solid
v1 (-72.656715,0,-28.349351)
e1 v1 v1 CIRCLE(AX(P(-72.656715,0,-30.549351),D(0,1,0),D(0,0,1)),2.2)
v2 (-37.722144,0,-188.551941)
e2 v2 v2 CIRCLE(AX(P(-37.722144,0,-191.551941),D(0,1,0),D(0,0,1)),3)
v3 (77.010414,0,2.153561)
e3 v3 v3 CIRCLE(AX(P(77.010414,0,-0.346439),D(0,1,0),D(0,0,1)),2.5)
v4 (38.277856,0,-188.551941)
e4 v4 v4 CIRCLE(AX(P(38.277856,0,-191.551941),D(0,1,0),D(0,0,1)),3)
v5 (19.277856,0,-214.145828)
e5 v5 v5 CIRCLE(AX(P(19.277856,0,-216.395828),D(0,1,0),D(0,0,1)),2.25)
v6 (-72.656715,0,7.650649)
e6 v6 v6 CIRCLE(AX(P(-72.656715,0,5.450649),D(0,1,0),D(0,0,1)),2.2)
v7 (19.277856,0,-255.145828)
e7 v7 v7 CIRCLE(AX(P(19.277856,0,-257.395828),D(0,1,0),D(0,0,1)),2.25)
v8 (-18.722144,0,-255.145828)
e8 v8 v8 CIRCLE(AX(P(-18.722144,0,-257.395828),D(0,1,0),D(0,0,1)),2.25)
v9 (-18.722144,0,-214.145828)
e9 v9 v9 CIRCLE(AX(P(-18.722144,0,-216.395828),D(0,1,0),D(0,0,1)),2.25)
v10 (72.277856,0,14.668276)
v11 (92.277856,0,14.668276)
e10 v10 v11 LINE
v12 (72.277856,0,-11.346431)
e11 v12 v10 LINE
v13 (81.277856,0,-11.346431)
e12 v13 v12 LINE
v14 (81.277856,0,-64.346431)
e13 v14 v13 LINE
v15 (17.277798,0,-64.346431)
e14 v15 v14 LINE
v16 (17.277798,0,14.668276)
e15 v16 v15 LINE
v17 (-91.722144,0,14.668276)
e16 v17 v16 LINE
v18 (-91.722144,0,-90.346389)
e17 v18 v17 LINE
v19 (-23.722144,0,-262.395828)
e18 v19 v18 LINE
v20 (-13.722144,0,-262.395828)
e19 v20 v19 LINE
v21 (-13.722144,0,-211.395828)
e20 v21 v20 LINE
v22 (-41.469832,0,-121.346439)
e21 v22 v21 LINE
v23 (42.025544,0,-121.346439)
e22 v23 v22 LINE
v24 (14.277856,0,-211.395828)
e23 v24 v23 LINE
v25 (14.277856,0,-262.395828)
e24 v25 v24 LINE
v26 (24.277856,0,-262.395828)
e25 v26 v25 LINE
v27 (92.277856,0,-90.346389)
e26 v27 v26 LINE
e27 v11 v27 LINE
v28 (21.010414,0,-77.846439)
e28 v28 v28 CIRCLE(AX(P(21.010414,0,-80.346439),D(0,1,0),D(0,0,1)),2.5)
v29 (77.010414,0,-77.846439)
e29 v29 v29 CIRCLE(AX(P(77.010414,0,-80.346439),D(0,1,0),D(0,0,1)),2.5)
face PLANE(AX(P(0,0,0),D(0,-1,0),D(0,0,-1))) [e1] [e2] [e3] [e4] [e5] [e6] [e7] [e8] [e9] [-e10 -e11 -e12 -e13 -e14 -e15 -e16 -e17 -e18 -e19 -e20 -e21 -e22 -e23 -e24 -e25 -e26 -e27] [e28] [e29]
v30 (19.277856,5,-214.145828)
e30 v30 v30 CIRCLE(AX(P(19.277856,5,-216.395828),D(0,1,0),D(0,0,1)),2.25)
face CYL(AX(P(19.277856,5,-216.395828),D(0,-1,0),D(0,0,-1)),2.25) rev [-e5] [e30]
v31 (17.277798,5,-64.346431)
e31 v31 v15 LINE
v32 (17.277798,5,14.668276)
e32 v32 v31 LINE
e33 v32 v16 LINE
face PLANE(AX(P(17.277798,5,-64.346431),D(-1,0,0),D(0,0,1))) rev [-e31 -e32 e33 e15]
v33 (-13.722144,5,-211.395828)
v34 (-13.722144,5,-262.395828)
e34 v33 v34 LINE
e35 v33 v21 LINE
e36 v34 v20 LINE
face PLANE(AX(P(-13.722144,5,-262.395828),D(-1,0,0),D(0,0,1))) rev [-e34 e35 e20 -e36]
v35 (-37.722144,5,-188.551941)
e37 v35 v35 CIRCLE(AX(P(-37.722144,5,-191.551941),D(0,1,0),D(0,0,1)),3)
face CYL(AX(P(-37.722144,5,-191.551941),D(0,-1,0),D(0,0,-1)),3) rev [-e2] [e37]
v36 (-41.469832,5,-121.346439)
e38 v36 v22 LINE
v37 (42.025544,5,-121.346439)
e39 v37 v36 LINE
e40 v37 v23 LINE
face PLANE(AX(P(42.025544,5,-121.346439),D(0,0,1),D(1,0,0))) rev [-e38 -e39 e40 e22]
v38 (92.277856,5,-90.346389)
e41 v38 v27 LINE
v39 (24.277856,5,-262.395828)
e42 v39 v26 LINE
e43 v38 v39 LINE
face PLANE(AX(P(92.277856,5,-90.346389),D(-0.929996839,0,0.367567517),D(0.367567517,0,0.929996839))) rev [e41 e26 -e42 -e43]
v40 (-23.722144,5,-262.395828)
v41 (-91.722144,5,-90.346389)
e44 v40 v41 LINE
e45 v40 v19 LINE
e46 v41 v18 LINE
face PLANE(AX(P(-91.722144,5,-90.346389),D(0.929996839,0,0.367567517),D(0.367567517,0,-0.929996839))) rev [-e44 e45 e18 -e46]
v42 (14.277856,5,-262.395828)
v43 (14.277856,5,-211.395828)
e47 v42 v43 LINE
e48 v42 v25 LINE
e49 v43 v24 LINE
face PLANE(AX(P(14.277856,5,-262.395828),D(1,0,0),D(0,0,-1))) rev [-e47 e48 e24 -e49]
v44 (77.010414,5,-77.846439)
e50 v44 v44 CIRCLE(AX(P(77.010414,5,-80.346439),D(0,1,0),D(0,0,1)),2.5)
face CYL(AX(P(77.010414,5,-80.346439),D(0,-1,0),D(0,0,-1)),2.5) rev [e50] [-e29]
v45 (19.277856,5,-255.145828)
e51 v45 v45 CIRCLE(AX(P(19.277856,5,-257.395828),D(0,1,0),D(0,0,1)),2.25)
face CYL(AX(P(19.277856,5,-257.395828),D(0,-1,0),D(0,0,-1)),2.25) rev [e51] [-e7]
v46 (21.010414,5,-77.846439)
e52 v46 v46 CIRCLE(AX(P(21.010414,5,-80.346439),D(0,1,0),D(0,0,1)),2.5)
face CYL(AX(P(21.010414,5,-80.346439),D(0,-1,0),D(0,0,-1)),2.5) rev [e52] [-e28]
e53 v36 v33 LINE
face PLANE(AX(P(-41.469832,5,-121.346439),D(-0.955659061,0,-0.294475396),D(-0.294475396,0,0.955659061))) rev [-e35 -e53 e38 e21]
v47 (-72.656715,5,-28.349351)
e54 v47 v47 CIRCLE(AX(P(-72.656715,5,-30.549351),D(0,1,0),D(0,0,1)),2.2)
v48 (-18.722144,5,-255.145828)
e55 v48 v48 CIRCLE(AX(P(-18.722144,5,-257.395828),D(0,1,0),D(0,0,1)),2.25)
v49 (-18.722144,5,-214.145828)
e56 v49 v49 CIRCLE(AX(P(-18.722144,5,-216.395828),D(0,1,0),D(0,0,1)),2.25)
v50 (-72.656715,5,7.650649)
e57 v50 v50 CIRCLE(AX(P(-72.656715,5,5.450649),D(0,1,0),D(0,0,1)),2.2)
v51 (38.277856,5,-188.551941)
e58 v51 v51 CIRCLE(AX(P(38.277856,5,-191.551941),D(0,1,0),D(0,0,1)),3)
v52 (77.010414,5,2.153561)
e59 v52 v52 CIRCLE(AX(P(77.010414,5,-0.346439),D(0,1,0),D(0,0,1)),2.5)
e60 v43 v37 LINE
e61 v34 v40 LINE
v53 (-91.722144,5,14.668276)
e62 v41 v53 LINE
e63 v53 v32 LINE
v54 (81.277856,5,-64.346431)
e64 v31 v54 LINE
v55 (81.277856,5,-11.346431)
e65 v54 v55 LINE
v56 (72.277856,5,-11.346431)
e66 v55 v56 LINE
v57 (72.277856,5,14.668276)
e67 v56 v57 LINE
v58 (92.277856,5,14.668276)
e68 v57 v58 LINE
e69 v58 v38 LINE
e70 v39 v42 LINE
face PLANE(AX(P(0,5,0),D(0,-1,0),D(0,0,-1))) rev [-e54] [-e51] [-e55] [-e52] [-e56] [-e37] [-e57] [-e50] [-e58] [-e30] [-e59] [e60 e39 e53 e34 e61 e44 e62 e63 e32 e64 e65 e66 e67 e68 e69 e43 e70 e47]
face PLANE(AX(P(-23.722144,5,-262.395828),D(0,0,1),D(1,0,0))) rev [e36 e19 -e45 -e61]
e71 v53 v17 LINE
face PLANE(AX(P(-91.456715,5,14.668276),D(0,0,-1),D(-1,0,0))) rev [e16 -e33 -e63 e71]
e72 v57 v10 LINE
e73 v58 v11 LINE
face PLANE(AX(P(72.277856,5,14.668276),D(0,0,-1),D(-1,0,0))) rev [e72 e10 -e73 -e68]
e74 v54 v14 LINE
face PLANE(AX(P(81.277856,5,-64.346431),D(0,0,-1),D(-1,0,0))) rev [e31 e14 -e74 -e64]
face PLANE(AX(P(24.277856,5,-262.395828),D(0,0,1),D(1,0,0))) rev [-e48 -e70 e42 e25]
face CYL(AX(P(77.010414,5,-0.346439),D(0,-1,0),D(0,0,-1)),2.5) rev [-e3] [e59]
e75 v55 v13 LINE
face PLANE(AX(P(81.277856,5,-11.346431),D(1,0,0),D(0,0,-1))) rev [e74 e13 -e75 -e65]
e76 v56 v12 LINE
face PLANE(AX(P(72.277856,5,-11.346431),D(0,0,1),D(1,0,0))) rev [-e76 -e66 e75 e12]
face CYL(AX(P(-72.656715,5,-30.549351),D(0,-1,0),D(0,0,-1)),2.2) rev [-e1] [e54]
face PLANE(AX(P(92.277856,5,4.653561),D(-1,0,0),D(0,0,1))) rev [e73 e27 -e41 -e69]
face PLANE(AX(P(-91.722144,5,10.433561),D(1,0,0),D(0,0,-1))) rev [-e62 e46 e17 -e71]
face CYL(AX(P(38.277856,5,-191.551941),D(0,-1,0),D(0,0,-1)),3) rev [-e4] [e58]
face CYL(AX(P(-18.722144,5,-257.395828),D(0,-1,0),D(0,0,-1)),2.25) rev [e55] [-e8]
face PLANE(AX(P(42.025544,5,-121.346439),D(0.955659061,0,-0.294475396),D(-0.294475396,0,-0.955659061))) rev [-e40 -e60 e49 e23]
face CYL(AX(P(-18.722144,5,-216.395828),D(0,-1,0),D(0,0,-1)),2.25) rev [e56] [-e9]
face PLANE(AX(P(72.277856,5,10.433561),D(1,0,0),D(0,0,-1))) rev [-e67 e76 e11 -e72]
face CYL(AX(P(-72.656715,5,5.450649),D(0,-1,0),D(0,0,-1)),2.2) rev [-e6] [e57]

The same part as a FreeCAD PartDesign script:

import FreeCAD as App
import Part
import Sketcher
from FreeCAD import Vector
Q = App.Units.Quantity


def add_polygon(sketch, points):
    """Adds a closed chain of lines whose ends are joined by coincident constraints."""
    first, n = sketch.GeometryCount, len(points)
    for a, b in zip(points, points[1:] + points[:1]):
        sketch.addGeometry(Part.LineSegment(App.Vector(*a, 0), App.Vector(*b, 0)), False)
    for i in range(n):
        sketch.addConstraint(Sketcher.Constraint("Coincident", first + i, 2, first + (i + 1) % n, 1))

doc = App.newDocument("Part")
body = doc.addObject("PartDesign::Body", "Body")

# Sketch on XZ plane
sketch1 = body.newObject("Sketcher::SketchObject", "Sketch")
sketch1.AttachmentSupport = (doc.getObject("XZ_Plane"), [""])
sketch1.MapMode = "FlatFace"
add_polygon(sketch1, [(-91.7, -90.3), (-91.7, 14.7), (17.3, 14.7), (17.3, -64.3), (81.3, -64.3), (81.3, -11.3), (72.3, -11.3), (72.3, 14.7), (92.3, 14.7), (92.3, -90.3), (24.3, -262.4), (14.3, -262.4), (14.3, -211.4), (42, -121.3), (-41.5, -121.3), (-13.7, -211.4), (-13.7, -262.4), (-23.7, -262.4)])  # lines 0-17
sketch1.addGeometry(Part.Circle(Vector(77, -0.3, 0), Vector(0, 0, 1), 2.5), False)  # 18
sketch1.addGeometry(Part.Circle(Vector(77, -80.3, 0), Vector(0, 0, 1), 2.5), False)  # 19
sketch1.addGeometry(Part.Circle(Vector(21, -80.3, 0), Vector(0, 0, 1), 2.5), False)  # 20
sketch1.addGeometry(Part.Circle(Vector(-72.7, 5.5, 0), Vector(0, 0, 1), 2.2), False)  # 21
sketch1.addGeometry(Part.Circle(Vector(-72.7, -30.5, 0), Vector(0, 0, 1), 2.2), False)  # 22
sketch1.addGeometry(Part.Circle(Vector(38.3, -191.6, 0), Vector(0, 0, 1), 3), False)  # 23
sketch1.addGeometry(Part.Circle(Vector(19.3, -216.4, 0), Vector(0, 0, 1), 2.2), False)  # 24
sketch1.addGeometry(Part.Circle(Vector(19.3, -257.4, 0), Vector(0, 0, 1), 2.2), False)  # 25
sketch1.addGeometry(Part.Circle(Vector(-37.7, -191.6, 0), Vector(0, 0, 1), 3), False)  # 26
sketch1.addGeometry(Part.Circle(Vector(-18.7, -216.4, 0), Vector(0, 0, 1), 2.2), False)  # 27
sketch1.addGeometry(Part.Circle(Vector(-18.7, -257.4, 0), Vector(0, 0, 1), 2.2), False)  # 28
sketch1.addConstraint(Sketcher.Constraint("Vertical", 0))
sketch1.addConstraint(Sketcher.Constraint("Horizontal", 1))
sketch1.addConstraint(Sketcher.Constraint("Vertical", 2))
sketch1.addConstraint(Sketcher.Constraint("Horizontal", 3))
sketch1.addConstraint(Sketcher.Constraint("Vertical", 4))
sketch1.addConstraint(Sketcher.Constraint("Horizontal", 5))
sketch1.addConstraint(Sketcher.Constraint("Vertical", 6))
sketch1.addConstraint(Sketcher.Constraint("Horizontal", 7))
sketch1.addConstraint(Sketcher.Constraint("Vertical", 8))
sketch1.addConstraint(Sketcher.Constraint("Horizontal", 10))
sketch1.addConstraint(Sketcher.Constraint("Vertical", 11))
sketch1.addConstraint(Sketcher.Constraint("Horizontal", 13))
sketch1.addConstraint(Sketcher.Constraint("Vertical", 15))
sketch1.addConstraint(Sketcher.Constraint("Horizontal", 16))
sketch1.addConstraint(Sketcher.Constraint("Equal", 18, 19))
sketch1.addConstraint(Sketcher.Constraint("Equal", 19, 20))
sketch1.addConstraint(Sketcher.Constraint("Equal", 21, 22))
sketch1.addConstraint(Sketcher.Constraint("Equal", 24, 25))
sketch1.addConstraint(Sketcher.Constraint("Equal", 23, 26))
sketch1.addConstraint(Sketcher.Constraint("Equal", 25, 27))
sketch1.addConstraint(Sketcher.Constraint("Equal", 27, 28))
sketch1.addConstraint(Sketcher.Constraint("Horizontal", 19, 3, 20, 3))
sketch1.addConstraint(Sketcher.Constraint("Horizontal", 23, 3, 26, 3))
sketch1.addConstraint(Sketcher.Constraint("Horizontal", 24, 3, 27, 3))
sketch1.addConstraint(Sketcher.Constraint("Horizontal", 25, 3, 28, 3))
sketch1.addConstraint(Sketcher.Constraint("Horizontal", 1, 2, 6, 2))
sketch1.addConstraint(Sketcher.Constraint("Horizontal", 11, 2, 14, 2))
sketch1.addConstraint(Sketcher.Constraint("Horizontal", 10, 2, 15, 2))
sketch1.addConstraint(Sketcher.Constraint("Horizontal", 8, 2, 17, 2))
sketch1.addConstraint(Sketcher.Constraint("Vertical", 18, 3, 19, 3))
sketch1.addConstraint(Sketcher.Constraint("Vertical", 21, 3, 22, 3))
sketch1.addConstraint(Sketcher.Constraint("Vertical", 24, 3, 25, 3))
sketch1.addConstraint(Sketcher.Constraint("Vertical", 27, 3, 28, 3))
sketch1.addConstraint(Sketcher.Constraint("Equal", 10, 16))
sketch1.addConstraint(Sketcher.Constraint("Equal", 12, 14))
sketch1.addConstraint(Sketcher.Constraint("Equal", 9, 17))
sketch1.addConstraint(Sketcher.Constraint("Diameter", 18, Q("5 mm")))
sketch1.addConstraint(Sketcher.Constraint("Diameter", 23, Q("6 mm")))
sketch1.addConstraint(Sketcher.Constraint("Diameter", 21, Q("4.4 mm")))
sketch1.addConstraint(Sketcher.Constraint("Diameter", 24, Q("4.5 mm")))
sketch1.addConstraint(Sketcher.Constraint("DistanceX", 5, 2, 5, 1, Q("9 mm")))
sketch1.addConstraint(Sketcher.Constraint("DistanceX", 7, 1, 7, 2, Q("20 mm")))
sketch1.addConstraint(Sketcher.Constraint("DistanceX", 10, 2, 10, 1, Q("10 mm")))
sketch1.addConstraint(Sketcher.Constraint("DistanceY", 4, 1, 4, 2, Q("53 mm")))
sketch1.addConstraint(Sketcher.Constraint("DistanceY", 11, 1, 11, 2, Q("51 mm")))
sketch1.addConstraint(Sketcher.Constraint("DistanceY", 19, 3, 18, 3, Q("80 mm")))
sketch1.addConstraint(Sketcher.Constraint("DistanceX", 20, 3, 19, 3, Q("56 mm")))
sketch1.addConstraint(Sketcher.Constraint("DistanceY", 22, 3, 21, 3, Q("36 mm")))
sketch1.addConstraint(Sketcher.Constraint("DistanceX", 24, 3, 23, 3, Q("19 mm")))
sketch1.addConstraint(Sketcher.Constraint("DistanceY", 25, 3, 24, 3, Q("41 mm")))
sketch1.addConstraint(Sketcher.Constraint("DistanceX", 26, 3, 24, 3, Q("57 mm")))
sketch1.addConstraint(Sketcher.Constraint("DistanceX", 26, 3, 27, 3, Q("19 mm")))
sketch1.addConstraint(Sketcher.Constraint("DistanceX", 25, 3, 9, 2, Q("5 mm")))
sketch1.addConstraint(Sketcher.Constraint("DistanceY", 9, 2, 25, 3, Q("5 mm")))
sketch1.addConstraint(Sketcher.Constraint("DistanceY", 12, 2, 20, 3, Q("41 mm")))
sketch1.addConstraint(Sketcher.Constraint("DistanceX", 27, 3, 14, 2, Q("5 mm")))
sketch1.addConstraint(Sketcher.Constraint("DistanceX", -1, 1, 1, 2, Q("17.277798 mm")))
sketch1.addConstraint(Sketcher.Constraint("DistanceX", 1, 1, 1, 2, Q("108.999943 mm")))
sketch1.addConstraint(Sketcher.Constraint("DistanceX", 3, 1, 3, 2, Q("64.000057 mm")))
sketch1.addConstraint(Sketcher.Constraint("DistanceX", 13, 2, 13, 1, Q("83.495376 mm")))
sketch1.addConstraint(Sketcher.Constraint("DistanceY", 0, 1, 0, 2, Q("105.014665 mm")))
sketch1.addConstraint(Sketcher.Constraint("DistanceY", 2, 2, 2, 1, Q("79.014707 mm")))
sketch1.addConstraint(Sketcher.Constraint("DistanceY", 18, 3, -1, 1, Q("0.346439 mm")))
sketch1.addConstraint(Sketcher.Constraint("DistanceY", -1, 1, 21, 3, Q("5.450649 mm")))
sketch1.addConstraint(Sketcher.Constraint("DistanceY", 23, 3, -1, 1, Q("191.551941 mm")))
sketch1.addConstraint(Sketcher.Constraint("DistanceY", 2, 2, -1, 1, Q("64.346431 mm")))
sketch1.addConstraint(Sketcher.Constraint("DistanceX", 21, 3, 20, 3, Q("93.667129 mm")))
sketch1.addConstraint(Sketcher.Constraint("DistanceX", 20, 3, 23, 3, Q("17.267441 mm")))
sketch1.addConstraint(Sketcher.Constraint("DistanceY", 24, 3, 20, 3, Q("136.049389 mm")))
pad1 = body.newObject("PartDesign::Pad", "Pad")
pad1.Profile = sketch1
pad1.Length = 5
pad1.Reversed = True

doc.recompute()
